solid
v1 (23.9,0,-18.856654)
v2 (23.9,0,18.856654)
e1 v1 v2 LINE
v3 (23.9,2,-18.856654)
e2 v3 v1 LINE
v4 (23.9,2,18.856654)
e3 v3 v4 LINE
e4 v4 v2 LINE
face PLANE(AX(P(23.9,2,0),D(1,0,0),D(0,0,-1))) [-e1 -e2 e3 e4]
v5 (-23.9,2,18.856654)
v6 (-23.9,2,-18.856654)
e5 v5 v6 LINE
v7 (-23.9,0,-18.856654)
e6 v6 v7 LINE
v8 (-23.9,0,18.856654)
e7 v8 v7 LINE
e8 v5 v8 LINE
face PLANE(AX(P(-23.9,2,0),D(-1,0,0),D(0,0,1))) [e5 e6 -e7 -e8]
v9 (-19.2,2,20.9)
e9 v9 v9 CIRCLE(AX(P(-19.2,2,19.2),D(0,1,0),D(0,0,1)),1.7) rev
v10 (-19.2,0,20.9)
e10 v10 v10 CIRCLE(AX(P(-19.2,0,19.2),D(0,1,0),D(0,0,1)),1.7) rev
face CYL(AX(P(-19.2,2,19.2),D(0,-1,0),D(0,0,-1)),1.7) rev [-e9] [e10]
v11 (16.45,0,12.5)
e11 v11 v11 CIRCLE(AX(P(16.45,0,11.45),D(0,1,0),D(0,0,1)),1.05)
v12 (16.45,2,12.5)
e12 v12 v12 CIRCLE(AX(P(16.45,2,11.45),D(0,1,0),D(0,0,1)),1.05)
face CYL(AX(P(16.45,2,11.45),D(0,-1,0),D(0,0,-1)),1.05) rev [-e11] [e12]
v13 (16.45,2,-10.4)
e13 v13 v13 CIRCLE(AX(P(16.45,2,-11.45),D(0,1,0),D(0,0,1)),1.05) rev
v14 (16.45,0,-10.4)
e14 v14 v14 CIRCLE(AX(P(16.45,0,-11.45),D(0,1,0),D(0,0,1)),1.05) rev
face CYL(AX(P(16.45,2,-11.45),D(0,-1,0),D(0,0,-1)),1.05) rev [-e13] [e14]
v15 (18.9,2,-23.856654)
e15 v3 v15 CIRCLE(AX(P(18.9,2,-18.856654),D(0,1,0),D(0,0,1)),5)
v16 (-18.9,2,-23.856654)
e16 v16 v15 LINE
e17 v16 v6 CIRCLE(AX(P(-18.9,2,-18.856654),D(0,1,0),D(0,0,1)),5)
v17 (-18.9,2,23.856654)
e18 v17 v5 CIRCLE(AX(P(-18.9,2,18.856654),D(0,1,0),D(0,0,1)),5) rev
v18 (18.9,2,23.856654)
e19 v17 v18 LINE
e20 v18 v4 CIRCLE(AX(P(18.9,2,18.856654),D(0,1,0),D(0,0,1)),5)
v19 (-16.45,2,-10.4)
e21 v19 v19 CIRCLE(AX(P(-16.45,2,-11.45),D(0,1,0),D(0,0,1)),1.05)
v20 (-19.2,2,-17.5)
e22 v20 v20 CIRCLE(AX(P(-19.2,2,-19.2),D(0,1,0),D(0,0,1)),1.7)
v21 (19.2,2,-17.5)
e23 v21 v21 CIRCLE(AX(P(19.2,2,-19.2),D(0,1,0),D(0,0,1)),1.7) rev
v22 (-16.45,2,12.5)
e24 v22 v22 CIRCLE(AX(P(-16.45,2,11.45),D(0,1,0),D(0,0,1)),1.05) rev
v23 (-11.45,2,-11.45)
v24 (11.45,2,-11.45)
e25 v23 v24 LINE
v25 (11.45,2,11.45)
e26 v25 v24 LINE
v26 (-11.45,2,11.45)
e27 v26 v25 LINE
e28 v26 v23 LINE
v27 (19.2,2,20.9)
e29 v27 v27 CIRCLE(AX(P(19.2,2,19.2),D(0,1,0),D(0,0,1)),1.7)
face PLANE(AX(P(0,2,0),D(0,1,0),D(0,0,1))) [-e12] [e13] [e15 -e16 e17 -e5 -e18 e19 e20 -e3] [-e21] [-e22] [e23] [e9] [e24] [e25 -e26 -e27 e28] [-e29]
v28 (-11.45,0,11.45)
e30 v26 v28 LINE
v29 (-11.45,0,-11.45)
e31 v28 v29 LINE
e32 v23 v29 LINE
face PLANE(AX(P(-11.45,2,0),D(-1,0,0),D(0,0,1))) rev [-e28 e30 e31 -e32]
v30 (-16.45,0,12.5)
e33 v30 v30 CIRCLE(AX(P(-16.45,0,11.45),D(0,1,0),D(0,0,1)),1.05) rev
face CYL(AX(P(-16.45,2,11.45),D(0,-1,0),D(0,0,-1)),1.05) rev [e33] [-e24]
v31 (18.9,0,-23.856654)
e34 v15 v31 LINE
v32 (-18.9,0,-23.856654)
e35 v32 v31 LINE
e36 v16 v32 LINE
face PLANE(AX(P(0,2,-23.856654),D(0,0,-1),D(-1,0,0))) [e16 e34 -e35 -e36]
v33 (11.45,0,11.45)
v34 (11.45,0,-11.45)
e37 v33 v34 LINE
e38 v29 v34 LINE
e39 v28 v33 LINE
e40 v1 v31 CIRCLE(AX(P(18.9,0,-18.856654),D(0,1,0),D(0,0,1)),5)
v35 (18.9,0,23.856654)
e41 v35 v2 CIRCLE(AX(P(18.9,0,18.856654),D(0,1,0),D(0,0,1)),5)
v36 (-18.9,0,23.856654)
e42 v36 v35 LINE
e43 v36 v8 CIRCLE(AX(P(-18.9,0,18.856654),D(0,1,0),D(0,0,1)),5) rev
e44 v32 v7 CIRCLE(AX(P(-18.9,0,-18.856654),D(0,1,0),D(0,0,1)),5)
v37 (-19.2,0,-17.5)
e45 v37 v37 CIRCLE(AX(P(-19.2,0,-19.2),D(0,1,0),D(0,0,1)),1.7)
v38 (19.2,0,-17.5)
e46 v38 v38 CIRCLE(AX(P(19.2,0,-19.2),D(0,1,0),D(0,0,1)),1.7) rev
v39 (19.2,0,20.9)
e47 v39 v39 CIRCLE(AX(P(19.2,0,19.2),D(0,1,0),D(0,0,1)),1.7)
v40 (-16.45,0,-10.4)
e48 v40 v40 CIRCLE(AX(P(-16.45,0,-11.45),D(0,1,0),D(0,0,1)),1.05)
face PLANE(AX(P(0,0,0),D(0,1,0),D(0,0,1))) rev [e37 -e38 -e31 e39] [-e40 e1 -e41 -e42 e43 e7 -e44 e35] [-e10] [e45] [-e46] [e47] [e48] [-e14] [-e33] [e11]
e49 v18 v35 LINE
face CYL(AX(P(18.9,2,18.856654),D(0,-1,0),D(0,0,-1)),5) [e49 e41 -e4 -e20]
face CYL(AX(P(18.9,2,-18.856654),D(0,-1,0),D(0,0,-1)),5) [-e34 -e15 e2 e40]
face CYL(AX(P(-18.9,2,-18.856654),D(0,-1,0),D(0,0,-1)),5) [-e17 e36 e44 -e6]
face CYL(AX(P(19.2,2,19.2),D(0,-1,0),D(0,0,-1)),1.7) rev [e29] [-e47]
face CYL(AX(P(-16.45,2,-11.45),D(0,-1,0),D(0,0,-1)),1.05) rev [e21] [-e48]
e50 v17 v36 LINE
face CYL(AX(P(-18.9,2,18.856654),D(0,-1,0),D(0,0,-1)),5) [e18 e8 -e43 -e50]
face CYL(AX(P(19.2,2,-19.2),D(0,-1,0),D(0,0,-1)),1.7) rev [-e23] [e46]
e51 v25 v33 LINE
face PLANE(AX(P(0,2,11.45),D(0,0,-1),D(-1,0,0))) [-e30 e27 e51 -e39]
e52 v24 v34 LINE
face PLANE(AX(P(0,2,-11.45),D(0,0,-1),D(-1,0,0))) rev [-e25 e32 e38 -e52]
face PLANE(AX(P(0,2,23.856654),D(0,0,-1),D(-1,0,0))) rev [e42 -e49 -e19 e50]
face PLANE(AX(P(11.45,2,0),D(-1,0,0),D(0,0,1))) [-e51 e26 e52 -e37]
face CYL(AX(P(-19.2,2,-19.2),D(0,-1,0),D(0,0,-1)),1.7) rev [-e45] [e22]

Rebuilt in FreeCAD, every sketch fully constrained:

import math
import FreeCAD as App
import Part
import Sketcher
Q = App.Units.Quantity

doc = App.newDocument("Part")
body = doc.addObject("PartDesign::Body", "Body")

sketch1 = doc.addObject("Sketcher::SketchObject", "Sketch")
body.addObject(sketch1)
sketch1.AttachmentSupport = (doc.XZ_Plane, [""])
sketch1.MapMode = "FlatFace"
sketch1.addGeometry(Part.ArcOfCircle(Part.Circle(App.Vector(-18.9, 18.9, 0), App.Vector(0, 0, 1), 5), math.radians(90), math.radians(180)), False)
sketch1.addGeometry(Part.LineSegment(App.Vector(-18.9, 23.9, 0), App.Vector(18.9, 23.9, 0)), False)
sketch1.addGeometry(Part.ArcOfCircle(Part.Circle(App.Vector(18.9, 18.9, 0), App.Vector(0, 0, 1), 5), math.radians(0), math.radians(90)), False)
sketch1.addGeometry(Part.LineSegment(App.Vector(23.9, 18.9, 0), App.Vector(23.9, -18.9, 0)), False)
sketch1.addGeometry(Part.ArcOfCircle(Part.Circle(App.Vector(18.9, -18.9, 0), App.Vector(0, 0, 1), 5), math.radians(-90), math.radians(0)), False)
sketch1.addGeometry(Part.LineSegment(App.Vector(18.9, -23.9, 0), App.Vector(-18.9, -23.9, 0)), False)
sketch1.addGeometry(Part.ArcOfCircle(Part.Circle(App.Vector(-18.9, -18.9, 0), App.Vector(0, 0, 1), 5), math.radians(-180), math.radians(-90)), False)
sketch1.addGeometry(Part.LineSegment(App.Vector(-23.9, -18.9, 0), App.Vector(-23.9, 18.9, 0)), False)
sketch1.addGeometry(Part.Circle(App.Vector(-19.2, 19.2, 0), App.Vector(0, 0, 1), 1.7), False)
sketch1.addGeometry(Part.Circle(App.Vector(-16.4, 11.4, 0), App.Vector(0, 0, 1), 1.1), False)
sketch1.addGeometry(Part.LineSegment(App.Vector(11.4, 11.4, 0), App.Vector(-11.4, 11.4, 0)), False)
sketch1.addGeometry(Part.LineSegment(App.Vector(-11.4, 11.4, 0), App.Vector(-11.4, -11.4, 0)), False)
sketch1.addGeometry(Part.LineSegment(App.Vector(-11.4, -11.4, 0), App.Vector(11.4, -11.4, 0)), False)
sketch1.addGeometry(Part.LineSegment(App.Vector(11.4, -11.4, 0), App.Vector(11.4, 11.4, 0)), False)
sketch1.addGeometry(Part.Circle(App.Vector(19.2, 19.2, 0), App.Vector(0, 0, 1), 1.7), False)
sketch1.addGeometry(Part.Circle(App.Vector(16.4, 11.4, 0), App.Vector(0, 0, 1), 1.1), False)
sketch1.addGeometry(Part.Circle(App.Vector(-16.4, -11.4, 0), App.Vector(0, 0, 1), 1.1), False)
sketch1.addGeometry(Part.Circle(App.Vector(-19.2, -19.2, 0), App.Vector(0, 0, 1), 1.7), False)
sketch1.addGeometry(Part.Circle(App.Vector(16.4, -11.4, 0), App.Vector(0, 0, 1), 1.1), False)
sketch1.addGeometry(Part.Circle(App.Vector(19.2, -19.2, 0), App.Vector(0, 0, 1), 1.7), False)
sketch1.addConstraint(Sketcher.Constraint("Tangent", 0, 1, 1, 1))
sketch1.addConstraint(Sketcher.Constraint("Tangent", 1, 2, 2, 2))
sketch1.addConstraint(Sketcher.Constraint("Tangent", 2, 1, 3, 1))
sketch1.addConstraint(Sketcher.Constraint("Tangent", 3, 2, 4, 2))
sketch1.addConstraint(Sketcher.Constraint("Tangent", 4, 1, 5, 1))
sketch1.addConstraint(Sketcher.Constraint("Tangent", 5, 2, 6, 2))
sketch1.addConstraint(Sketcher.Constraint("Tangent", 6, 1, 7, 1))
sketch1.addConstraint(Sketcher.Constraint("Tangent", 7, 2, 0, 2))
sketch1.addConstraint(Sketcher.Constraint("Coincident", 10, 2, 11, 1))
sketch1.addConstraint(Sketcher.Constraint("Coincident", 11, 2, 12, 1))
sketch1.addConstraint(Sketcher.Constraint("Coincident", 12, 2, 13, 1))
sketch1.addConstraint(Sketcher.Constraint("Coincident", 13, 2, 10, 1))
sketch1.addConstraint(Sketcher.Constraint("Horizontal", 1))
sketch1.addConstraint(Sketcher.Constraint("Vertical", 3))
sketch1.addConstraint(Sketcher.Constraint("Horizontal", 5))
sketch1.addConstraint(Sketcher.Constraint("Vertical", 7))
sketch1.addConstraint(Sketcher.Constraint("Horizontal", 10))
sketch1.addConstraint(Sketcher.Constraint("Vertical", 11))
sketch1.addConstraint(Sketcher.Constraint("Horizontal", 12))
sketch1.addConstraint(Sketcher.Constraint("Vertical", 13))
sketch1.addConstraint(Sketcher.Constraint("Equal", 0, 2))
sketch1.addConstraint(Sketcher.Constraint("Equal", 2, 4))
sketch1.addConstraint(Sketcher.Constraint("Equal", 4, 6))
sketch1.addConstraint(Sketcher.Constraint("Equal", 8, 14))
sketch1.addConstraint(Sketcher.Constraint("Equal", 9, 15))
sketch1.addConstraint(Sketcher.Constraint("Equal", 15, 16))
sketch1.addConstraint(Sketcher.Constraint("Equal", 14, 17))
sketch1.addConstraint(Sketcher.Constraint("Equal", 16, 18))
sketch1.addConstraint(Sketcher.Constraint("Equal", 17, 19))
sketch1.addConstraint(Sketcher.Constraint("Symmetric", 0, 3, 4, 3, -1, 1))
sketch1.addConstraint(Sketcher.Constraint("Symmetric", 15, 3, 16, 3, -1, 1))
sketch1.addConstraint(Sketcher.Constraint("Symmetric", 14, 3, 17, 3, -1, 1))
sketch1.addConstraint(Sketcher.Constraint("Symmetric", 9, 3, 18, 3, -1, 1))
sketch1.addConstraint(Sketcher.Constraint("Symmetric", 8, 3, 19, 3, -1, 1))
sketch1.addConstraint(Sketcher.Constraint("Symmetric", 10, 2, 12, 2, -1, 1))
sketch1.addConstraint(Sketcher.Constraint("Symmetric", 8, 3, 14, 3, -2))
sketch1.addConstraint(Sketcher.Constraint("Symmetric", 9, 3, 15, 3, -2))
sketch1.addConstraint(Sketcher.Constraint("Horizontal", 15, 3, 10, 2))
sketch1.addConstraint(Sketcher.Constraint("Equal", 12, 11))
sketch1.addConstraint(Sketcher.Constraint("Radius", 0, Q("5 mm")))
sketch1.addConstraint(Sketcher.Constraint("Diameter", 8, Q("3.4 mm")))
sketch1.addConstraint(Sketcher.Constraint("Diameter", 9, Q("2.1 mm")))
sketch1.addConstraint(Sketcher.Constraint("DistanceX", 1, 1, 1, 2, Q("37.8 mm")))
sketch1.addConstraint(Sketcher.Constraint("DistanceX", 10, 2, 10, 1, Q("22.9 mm")))
sketch1.addConstraint(Sketcher.Constraint("DistanceX", 9, 3, 10, 2, Q("5 mm")))
sketch1.addConstraint(Sketcher.Constraint("DistanceX", 8, 3, -1, 1, Q("19.2 mm")))
sketch1.addConstraint(Sketcher.Constraint("DistanceY", -1, 1, 8, 3, Q("19.2 mm")))
sketch1.addConstraint(Sketcher.Constraint("DistanceY", 3, 2, 3, 1, Q("37.713308 mm")))
pad1 = doc.addObject("PartDesign::Pad", "Pad")
body.addObject(pad1)
pad1.Profile = sketch1
pad1.Length = 2
pad1.Reversed = True

doc.recompute()
